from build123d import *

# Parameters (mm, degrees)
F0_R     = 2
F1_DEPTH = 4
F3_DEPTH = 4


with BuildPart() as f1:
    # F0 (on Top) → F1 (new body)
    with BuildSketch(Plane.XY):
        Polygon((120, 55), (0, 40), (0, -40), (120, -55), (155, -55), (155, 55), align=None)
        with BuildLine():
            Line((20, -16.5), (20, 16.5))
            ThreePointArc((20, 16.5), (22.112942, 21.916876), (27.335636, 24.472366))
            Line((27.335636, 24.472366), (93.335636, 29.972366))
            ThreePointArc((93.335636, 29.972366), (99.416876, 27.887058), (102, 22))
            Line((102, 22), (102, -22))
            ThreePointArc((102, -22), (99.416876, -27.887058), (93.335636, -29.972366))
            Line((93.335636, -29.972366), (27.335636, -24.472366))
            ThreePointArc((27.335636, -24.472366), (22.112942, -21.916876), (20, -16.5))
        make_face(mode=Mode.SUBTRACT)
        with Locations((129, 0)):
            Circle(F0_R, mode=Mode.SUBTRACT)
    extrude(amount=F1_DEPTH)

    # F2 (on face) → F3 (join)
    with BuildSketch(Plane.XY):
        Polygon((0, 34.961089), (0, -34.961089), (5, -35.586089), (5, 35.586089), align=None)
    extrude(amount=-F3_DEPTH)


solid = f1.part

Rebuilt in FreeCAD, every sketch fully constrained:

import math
import FreeCAD as App
import Part
import Sketcher

doc = App.newDocument("Part")
body = doc.addObject("PartDesign::Body", "Body")

sketch1 = body.newObject("Sketcher::SketchObject", "Sketch")
sketch1.AttachmentSupport = (doc.getObject("XY_Plane"), [""])
sketch1.MapMode = "FlatFace"
sketch1.addGeometry([
    Part.LineSegment(App.Vector(120, 55, 0), App.Vector(0, 40, 0)),
    Part.LineSegment(App.Vector(0, 40, 0), App.Vector(0, -40, 0)),
    Part.LineSegment(App.Vector(0, -40, 0), App.Vector(120, -55, 0)),
    Part.LineSegment(App.Vector(120, -55, 0), App.Vector(155, -55, 0)),
    Part.LineSegment(App.Vector(155, -55, 0), App.Vector(155, 55, 0)),
    Part.LineSegment(App.Vector(155, 55, 0), App.Vector(120, 55, 0)),
    Part.ArcOfCircle(Part.Circle(App.Vector(28, -16.5, 0), App.Vector(0, 0, 1), 8), math.radians(-180), math.radians(-95)),
    Part.LineSegment(App.Vector(20, -16.5, 0), App.Vector(20, 16.5, 0)),
    Part.ArcOfCircle(Part.Circle(App.Vector(28, 16.5, 0), App.Vector(0, 0, 1), 8), math.radians(95), math.radians(180)),
    Part.LineSegment(App.Vector(27.3, 24.5, 0), App.Vector(93.3, 30, 0)),
    Part.ArcOfCircle(Part.Circle(App.Vector(94, 22, 0), App.Vector(0, 0, 1), 8), math.radians(0), math.radians(95)),
    Part.LineSegment(App.Vector(102, 22, 0), App.Vector(102, -22, 0)),
    Part.ArcOfCircle(Part.Circle(App.Vector(94, -22, 0), App.Vector(0, 0, 1), 8), math.radians(-95), math.radians(0)),
    Part.LineSegment(App.Vector(93.3, -30, 0), App.Vector(27.3, -24.5, 0)),
    Part.Circle(App.Vector(129, 0, 0), App.Vector(0, 0, 1), 2),
], False)
sketch1.addConstraint([
    Sketcher.Constraint("Coincident", 0, 2, 1, 1),
    Sketcher.Constraint("Coincident", 1, 2, 2, 1),
    Sketcher.Constraint("Coincident", 2, 2, 3, 1),
    Sketcher.Constraint("Coincident", 3, 2, 4, 1),
    Sketcher.Constraint("Coincident", 4, 2, 5, 1),
    Sketcher.Constraint("Coincident", 5, 2, 0, 1),
    Sketcher.Constraint("Tangent", 6, 1, 7, 1),
    Sketcher.Constraint("Tangent", 7, 2, 8, 2),
    Sketcher.Constraint("Tangent", 8, 1, 9, 1),
    Sketcher.Constraint("Tangent", 9, 2, 10, 2),
    Sketcher.Constraint("Tangent", 10, 1, 11, 1),
    Sketcher.Constraint("Tangent", 11, 2, 12, 2),
    Sketcher.Constraint("Tangent", 12, 1, 13, 1),
    Sketcher.Constraint("Tangent", 13, 2, 6, 2),
    Sketcher.Constraint("Vertical", 1),
    Sketcher.Constraint("Horizontal", 3),
    Sketcher.Constraint("Vertical", 4),
    Sketcher.Constraint("Horizontal", 5),
    Sketcher.Constraint("Vertical", 7),
    Sketcher.Constraint("Vertical", 11),
    Sketcher.Constraint("Equal", 6, 8),
    Sketcher.Constraint("Equal", 8, 10),
    Sketcher.Constraint("Equal", 10, 12),
    Sketcher.Constraint("Symmetric", 0, 2, 1, 2, -1, 1),
    Sketcher.Constraint("Symmetric", 2, 2, 5, 2, -1),
    Sketcher.Constraint("Symmetric", 9, 2, 12, 1, -1),
    Sketcher.Constraint("PointOnObject", 14, 3, -1),
    Sketcher.Constraint("Diameter", 14, 4.0),
    Sketcher.Constraint("Radius", 6, 8.0),
    Sketcher.Constraint("DistanceX", 3, 1, 3, 2, 35.0),
    Sketcher.Constraint("DistanceY", 1, 2, 1, 1, 80.0),
    Sketcher.Constraint("DistanceY", 4, 1, 4, 2, 110.0),
    Sketcher.Constraint("DistanceY", 7, 1, 7, 2, 33.0),
    Sketcher.Constraint("DistanceY", 11, 2, 11, 1, 44.0),
    Sketcher.Constraint("DistanceX", -1, 1, 6, 3, 28.0),
    Sketcher.Constraint("DistanceX", -1, 1, 10, 3, 94.0),
    Sketcher.Constraint("DistanceX", -1, 1, 14, 3, 129.0),
    Sketcher.Constraint("DistanceX", -1, 1, 2, 2, 120.0),
])
pad1 = body.newObject("PartDesign::Pad", "Pad")
pad1.Profile = sketch1
pad1.Length = 4

sketch2 = body.newObject("Sketcher::SketchObject", "Sketch001")
sketch2.AttachmentSupport = (doc.getObject("XY_Plane"), [""])
sketch2.MapMode = "FlatFace"
sketch2.addGeometry([
    Part.LineSegment(App.Vector(0, 35, 0), App.Vector(0, -35, 0)),
    Part.LineSegment(App.Vector(0, -35, 0), App.Vector(5, -36, 0)),
    Part.LineSegment(App.Vector(5, -36, 0), App.Vector(5, 36, 0)),
    Part.LineSegment(App.Vector(5, 36, 0), App.Vector(0, 35, 0)),
], False)
sketch2.addConstraint([
    Sketcher.Constraint("Coincident", 0, 2, 1, 1),
    Sketcher.Constraint("Coincident", 1, 2, 2, 1),
    Sketcher.Constraint("Coincident", 2, 2, 3, 1),
    Sketcher.Constraint("Coincident", 3, 2, 0, 1),
    Sketcher.Constraint("Vertical", 0),
    Sketcher.Constraint("Vertical", 2),
    Sketcher.Constraint("Symmetric", 0, 2, 3, 2, -1, 1),
    Sketcher.Constraint("Equal", 1, 3),
    Sketcher.Constraint("DistanceX", -1, 1, 1, 2, 5.0),
    Sketcher.Constraint("DistanceY", 1, 2, 0, 2, 0.625),
    Sketcher.Constraint("DistanceY", 0, 2, 0, 1, 69.922178),
])
pad2 = body.newObject("PartDesign::Pad", "Pad001")
pad2.Profile = sketch2
pad2.Length = 4
pad2.Reversed = True

doc.recompute()
